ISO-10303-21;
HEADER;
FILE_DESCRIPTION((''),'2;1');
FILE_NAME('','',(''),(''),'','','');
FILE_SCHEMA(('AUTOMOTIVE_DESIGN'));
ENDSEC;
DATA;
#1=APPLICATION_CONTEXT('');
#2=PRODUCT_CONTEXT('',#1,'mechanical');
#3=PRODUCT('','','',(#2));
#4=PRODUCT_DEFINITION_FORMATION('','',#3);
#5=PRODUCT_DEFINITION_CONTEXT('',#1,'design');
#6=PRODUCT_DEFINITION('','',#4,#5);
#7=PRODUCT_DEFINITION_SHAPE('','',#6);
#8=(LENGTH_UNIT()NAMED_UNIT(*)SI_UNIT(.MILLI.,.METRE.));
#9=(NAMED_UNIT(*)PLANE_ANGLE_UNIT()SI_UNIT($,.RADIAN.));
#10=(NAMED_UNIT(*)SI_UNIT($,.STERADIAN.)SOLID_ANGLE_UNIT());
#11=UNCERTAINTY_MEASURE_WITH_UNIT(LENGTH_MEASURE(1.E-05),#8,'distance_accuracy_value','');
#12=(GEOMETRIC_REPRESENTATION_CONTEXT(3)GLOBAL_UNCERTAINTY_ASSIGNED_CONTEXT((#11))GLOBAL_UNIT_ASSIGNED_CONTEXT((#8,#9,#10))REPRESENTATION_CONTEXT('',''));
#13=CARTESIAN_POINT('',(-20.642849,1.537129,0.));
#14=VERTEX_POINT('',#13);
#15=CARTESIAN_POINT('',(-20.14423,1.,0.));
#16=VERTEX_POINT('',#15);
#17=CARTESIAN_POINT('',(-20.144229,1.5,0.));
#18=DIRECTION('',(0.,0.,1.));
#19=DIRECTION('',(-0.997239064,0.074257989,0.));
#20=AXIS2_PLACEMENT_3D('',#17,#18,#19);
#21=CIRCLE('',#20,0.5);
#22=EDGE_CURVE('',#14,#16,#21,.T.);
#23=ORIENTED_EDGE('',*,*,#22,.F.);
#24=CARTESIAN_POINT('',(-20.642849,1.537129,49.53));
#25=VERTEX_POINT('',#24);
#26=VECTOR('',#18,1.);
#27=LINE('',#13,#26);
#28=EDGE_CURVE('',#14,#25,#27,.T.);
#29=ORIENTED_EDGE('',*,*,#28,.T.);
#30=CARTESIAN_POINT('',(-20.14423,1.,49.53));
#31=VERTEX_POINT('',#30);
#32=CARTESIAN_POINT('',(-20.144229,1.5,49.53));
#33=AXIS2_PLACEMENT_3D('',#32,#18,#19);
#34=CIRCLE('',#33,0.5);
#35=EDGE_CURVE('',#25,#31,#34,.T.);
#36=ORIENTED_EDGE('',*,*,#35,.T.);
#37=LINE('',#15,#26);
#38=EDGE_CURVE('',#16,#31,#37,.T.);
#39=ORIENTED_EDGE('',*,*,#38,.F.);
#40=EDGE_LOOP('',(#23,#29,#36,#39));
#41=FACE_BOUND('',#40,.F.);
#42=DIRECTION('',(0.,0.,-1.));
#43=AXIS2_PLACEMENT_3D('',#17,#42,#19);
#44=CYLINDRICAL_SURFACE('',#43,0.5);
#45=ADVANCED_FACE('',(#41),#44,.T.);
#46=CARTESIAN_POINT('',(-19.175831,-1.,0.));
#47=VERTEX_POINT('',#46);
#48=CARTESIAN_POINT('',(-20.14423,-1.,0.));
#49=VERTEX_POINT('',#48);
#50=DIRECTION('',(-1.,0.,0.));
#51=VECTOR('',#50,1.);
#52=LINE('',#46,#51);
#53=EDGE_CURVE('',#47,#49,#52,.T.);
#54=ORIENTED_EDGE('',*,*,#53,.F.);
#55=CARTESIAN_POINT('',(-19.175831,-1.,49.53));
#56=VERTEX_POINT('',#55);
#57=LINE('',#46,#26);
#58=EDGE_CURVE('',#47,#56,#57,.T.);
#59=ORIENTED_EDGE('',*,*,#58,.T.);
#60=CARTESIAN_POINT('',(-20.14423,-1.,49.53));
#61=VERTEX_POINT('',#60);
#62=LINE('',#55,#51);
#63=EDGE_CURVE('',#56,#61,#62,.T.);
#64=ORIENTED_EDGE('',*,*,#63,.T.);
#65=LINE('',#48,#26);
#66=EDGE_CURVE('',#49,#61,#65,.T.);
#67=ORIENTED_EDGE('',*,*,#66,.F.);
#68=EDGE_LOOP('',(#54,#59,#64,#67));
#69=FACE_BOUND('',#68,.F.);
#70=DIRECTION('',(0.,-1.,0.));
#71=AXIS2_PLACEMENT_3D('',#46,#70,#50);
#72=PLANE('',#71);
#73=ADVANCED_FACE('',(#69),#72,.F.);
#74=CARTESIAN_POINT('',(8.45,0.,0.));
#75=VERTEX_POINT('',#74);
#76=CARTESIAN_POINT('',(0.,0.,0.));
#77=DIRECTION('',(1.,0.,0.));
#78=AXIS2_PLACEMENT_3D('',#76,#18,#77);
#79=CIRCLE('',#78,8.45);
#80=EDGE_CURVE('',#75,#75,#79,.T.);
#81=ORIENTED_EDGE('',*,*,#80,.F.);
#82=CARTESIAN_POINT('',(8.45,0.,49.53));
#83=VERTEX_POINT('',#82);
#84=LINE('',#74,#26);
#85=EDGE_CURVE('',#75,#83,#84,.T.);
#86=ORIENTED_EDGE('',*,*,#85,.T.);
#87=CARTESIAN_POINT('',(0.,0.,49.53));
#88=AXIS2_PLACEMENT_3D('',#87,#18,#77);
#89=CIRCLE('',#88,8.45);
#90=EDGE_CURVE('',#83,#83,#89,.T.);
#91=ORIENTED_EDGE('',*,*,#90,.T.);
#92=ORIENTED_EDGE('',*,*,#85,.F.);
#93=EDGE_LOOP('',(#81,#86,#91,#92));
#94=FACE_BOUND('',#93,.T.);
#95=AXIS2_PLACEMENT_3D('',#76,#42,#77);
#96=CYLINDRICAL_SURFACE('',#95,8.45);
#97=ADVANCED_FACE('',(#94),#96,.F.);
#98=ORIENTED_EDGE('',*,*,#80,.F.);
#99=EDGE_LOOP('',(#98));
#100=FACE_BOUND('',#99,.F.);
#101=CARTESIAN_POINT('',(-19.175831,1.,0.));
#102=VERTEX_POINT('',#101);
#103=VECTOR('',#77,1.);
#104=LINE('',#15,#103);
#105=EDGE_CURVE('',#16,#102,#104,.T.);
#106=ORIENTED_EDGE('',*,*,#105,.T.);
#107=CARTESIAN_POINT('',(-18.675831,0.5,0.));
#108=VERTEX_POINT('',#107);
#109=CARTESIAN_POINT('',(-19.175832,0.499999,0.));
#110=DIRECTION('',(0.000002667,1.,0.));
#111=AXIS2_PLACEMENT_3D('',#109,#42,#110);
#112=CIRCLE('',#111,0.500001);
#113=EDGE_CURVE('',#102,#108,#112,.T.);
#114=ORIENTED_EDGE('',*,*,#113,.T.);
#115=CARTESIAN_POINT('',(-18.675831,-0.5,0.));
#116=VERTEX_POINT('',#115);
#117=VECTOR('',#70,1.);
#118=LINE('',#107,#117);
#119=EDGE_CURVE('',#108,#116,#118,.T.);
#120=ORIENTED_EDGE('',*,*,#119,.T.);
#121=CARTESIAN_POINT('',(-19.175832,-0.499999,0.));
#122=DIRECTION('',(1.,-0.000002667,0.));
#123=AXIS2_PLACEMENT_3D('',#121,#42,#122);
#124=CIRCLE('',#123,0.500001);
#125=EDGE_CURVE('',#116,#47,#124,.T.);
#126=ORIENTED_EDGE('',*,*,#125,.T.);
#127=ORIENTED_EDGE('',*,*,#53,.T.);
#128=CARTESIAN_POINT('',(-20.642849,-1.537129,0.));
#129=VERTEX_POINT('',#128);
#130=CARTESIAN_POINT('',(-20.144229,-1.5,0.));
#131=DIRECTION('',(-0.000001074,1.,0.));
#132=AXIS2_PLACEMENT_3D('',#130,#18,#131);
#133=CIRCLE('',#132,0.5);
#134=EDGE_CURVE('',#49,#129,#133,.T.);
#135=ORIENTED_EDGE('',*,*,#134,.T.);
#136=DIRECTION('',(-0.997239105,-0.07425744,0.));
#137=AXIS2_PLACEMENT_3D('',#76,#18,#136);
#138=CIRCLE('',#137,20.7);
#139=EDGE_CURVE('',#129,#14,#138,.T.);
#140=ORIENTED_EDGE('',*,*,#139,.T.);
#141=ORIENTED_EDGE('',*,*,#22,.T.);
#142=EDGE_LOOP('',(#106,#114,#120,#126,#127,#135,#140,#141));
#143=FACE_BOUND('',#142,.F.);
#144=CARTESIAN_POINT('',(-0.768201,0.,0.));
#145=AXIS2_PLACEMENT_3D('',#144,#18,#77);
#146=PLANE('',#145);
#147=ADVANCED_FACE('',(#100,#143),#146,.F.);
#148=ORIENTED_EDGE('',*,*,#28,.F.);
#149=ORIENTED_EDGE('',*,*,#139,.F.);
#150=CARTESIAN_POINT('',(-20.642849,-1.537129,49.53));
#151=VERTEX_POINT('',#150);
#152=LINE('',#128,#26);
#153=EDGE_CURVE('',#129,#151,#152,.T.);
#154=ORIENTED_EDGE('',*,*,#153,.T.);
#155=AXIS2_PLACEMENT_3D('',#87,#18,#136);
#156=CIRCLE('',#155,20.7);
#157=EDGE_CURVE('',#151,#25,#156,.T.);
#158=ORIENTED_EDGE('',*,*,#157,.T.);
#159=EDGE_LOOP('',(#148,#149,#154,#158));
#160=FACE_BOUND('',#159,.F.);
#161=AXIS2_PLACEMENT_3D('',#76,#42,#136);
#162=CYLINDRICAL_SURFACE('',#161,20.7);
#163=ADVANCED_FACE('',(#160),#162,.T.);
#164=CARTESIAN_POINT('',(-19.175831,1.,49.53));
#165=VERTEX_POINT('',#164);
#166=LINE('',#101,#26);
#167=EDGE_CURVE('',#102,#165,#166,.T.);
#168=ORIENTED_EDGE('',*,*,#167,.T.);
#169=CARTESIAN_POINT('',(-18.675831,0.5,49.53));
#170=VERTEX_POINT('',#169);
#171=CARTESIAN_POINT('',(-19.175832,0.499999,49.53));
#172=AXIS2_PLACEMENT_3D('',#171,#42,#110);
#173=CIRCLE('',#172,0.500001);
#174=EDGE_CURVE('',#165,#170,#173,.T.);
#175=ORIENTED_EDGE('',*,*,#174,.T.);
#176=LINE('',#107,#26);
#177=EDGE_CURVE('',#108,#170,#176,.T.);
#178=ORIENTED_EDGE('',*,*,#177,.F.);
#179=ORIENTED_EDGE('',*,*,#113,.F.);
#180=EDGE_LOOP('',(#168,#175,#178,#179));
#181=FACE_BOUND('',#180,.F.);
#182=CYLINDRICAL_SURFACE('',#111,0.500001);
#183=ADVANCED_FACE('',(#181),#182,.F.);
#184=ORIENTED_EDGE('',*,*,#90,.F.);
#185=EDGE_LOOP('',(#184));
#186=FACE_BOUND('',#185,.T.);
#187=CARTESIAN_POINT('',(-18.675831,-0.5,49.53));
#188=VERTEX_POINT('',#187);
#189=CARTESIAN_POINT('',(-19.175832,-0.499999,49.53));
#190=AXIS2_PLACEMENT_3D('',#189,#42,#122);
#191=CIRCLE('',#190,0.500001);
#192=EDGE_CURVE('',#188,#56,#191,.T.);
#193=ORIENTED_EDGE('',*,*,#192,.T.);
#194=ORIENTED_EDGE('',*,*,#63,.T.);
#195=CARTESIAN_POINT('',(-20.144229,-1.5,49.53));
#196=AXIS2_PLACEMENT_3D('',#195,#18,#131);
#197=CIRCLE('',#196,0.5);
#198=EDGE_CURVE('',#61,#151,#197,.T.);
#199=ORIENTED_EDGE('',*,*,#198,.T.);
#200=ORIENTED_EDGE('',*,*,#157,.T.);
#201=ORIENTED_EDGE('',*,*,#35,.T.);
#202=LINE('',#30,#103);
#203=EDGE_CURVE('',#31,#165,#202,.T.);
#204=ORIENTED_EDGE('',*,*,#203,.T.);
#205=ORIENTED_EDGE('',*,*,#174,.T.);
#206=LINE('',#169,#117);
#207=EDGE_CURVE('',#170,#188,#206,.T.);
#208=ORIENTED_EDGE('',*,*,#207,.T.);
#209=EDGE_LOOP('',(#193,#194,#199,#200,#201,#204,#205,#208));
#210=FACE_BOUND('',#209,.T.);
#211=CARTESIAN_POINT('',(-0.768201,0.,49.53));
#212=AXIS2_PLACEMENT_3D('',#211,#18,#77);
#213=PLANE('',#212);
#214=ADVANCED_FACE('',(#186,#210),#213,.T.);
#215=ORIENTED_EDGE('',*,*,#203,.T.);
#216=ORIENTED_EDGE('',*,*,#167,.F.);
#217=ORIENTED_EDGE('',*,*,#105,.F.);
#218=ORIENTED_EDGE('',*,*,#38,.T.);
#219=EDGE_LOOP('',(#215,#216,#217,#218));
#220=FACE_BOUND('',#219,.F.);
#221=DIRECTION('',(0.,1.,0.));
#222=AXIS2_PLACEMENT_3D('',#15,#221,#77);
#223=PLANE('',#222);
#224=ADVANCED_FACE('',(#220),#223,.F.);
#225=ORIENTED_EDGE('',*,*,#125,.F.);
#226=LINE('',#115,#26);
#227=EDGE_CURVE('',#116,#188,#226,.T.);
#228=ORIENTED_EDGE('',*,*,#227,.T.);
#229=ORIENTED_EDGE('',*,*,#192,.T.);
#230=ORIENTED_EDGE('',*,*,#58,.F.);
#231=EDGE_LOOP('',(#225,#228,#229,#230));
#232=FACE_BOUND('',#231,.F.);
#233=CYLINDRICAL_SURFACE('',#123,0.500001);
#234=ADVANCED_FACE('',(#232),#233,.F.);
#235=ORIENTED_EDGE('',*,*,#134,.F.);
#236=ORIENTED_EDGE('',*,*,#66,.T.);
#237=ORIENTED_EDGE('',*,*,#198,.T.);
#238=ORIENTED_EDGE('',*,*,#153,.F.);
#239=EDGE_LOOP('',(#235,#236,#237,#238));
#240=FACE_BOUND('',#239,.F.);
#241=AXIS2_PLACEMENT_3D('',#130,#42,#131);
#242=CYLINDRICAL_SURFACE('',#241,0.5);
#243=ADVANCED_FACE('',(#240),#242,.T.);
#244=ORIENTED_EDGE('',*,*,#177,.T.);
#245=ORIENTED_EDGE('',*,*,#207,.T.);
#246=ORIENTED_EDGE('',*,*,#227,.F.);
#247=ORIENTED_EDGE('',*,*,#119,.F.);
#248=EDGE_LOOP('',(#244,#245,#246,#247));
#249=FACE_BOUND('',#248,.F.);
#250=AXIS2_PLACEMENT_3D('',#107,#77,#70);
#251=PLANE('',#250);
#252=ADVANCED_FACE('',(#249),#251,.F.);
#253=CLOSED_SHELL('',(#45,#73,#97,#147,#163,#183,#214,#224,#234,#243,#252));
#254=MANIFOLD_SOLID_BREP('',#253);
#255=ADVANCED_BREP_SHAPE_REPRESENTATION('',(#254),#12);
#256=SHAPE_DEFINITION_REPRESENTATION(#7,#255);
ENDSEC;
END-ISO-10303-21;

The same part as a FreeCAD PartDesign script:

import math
import FreeCAD as App
import Part
import Sketcher
from FreeCAD import Vector

doc = App.newDocument("Part")
body = doc.addObject("PartDesign::Body", "Body")

sketch1 = body.newObject("Sketcher::SketchObject", "Sketch")
sketch1.AttachmentSupport = (doc.getObject("XY_Plane"), [""])
sketch1.MapMode = "FlatFace"
sketch1.addGeometry(Part.ArcOfCircle(Part.Circle(Vector(-20.144229, -1.5, 0), Vector(0, 0, 1), 0.5), math.radians(90.000062), math.radians(184.258589)), False)
sketch1.addGeometry(Part.ArcOfCircle(Part.Circle(Vector(0, 0, 0), Vector(0, 0, 1), 20.7), math.radians(-175.741442), math.radians(175.741442)), False)
sketch1.addGeometry(Part.ArcOfCircle(Part.Circle(Vector(-20.144229, 1.5, 0), Vector(0, 0, 1), 0.5), math.radians(175.741411), math.radians(269.999938)), False)
sketch1.addGeometry(Part.LineSegment(Vector(-20.14423, 1, 0), Vector(-19.175831, 1, 0)), False)
sketch1.addGeometry(Part.ArcOfCircle(Part.Circle(Vector(-19.175832, 0.499999, 0), Vector(0, 0, 1), 0.500001), math.radians(0.000153), math.radians(89.999847)), False)
sketch1.addGeometry(Part.LineSegment(Vector(-18.675831, 0.5, 0), Vector(-18.675831, -0.5, 0)), False)
sketch1.addGeometry(Part.ArcOfCircle(Part.Circle(Vector(-19.175832, -0.499999, 0), Vector(0, 0, 1), 0.500001), math.radians(-89.999847), math.radians(-0.000153)), False)
sketch1.addGeometry(Part.LineSegment(Vector(-19.175831, -1, 0), Vector(-20.14423, -1, 0)), False)
sketch1.addGeometry(Part.Circle(Vector(0, 0, 0), Vector(0, 0, 1), 8.45), False)
sketch1.addConstraint(Sketcher.Constraint("Tangent", 0, 2, 1, 1))
sketch1.addConstraint(Sketcher.Constraint("Tangent", 1, 2, 2, 1))
sketch1.addConstraint(Sketcher.Constraint("Tangent", 2, 2, 3, 1))
sketch1.addConstraint(Sketcher.Constraint("Coincident", 3, 2, 4, 2))
sketch1.addConstraint(Sketcher.Constraint("Coincident", 4, 1, 5, 1))
sketch1.addConstraint(Sketcher.Constraint("Coincident", 5, 2, 6, 2))
sketch1.addConstraint(Sketcher.Constraint("Coincident", 6, 1, 7, 1))
sketch1.addConstraint(Sketcher.Constraint("Tangent", 7, 2, 0, 1))
sketch1.addConstraint(Sketcher.Constraint("Horizontal", 3))
sketch1.addConstraint(Sketcher.Constraint("Vertical", 5))
sketch1.addConstraint(Sketcher.Constraint("Horizontal", 7))
sketch1.addConstraint(Sketcher.Constraint("Coincident", 1, 3, -1, 1))
sketch1.addConstraint(Sketcher.Constraint("Coincident", 8, 3, -1, 1))
sketch1.addConstraint(Sketcher.Constraint("Equal", 0, 2))
sketch1.addConstraint(Sketcher.Constraint("Equal", 2, 4))
sketch1.addConstraint(Sketcher.Constraint("Equal", 4, 6))
sketch1.addConstraint(Sketcher.Constraint("Symmetric", 3, 2, 6, 1, -1))
sketch1.addConstraint(Sketcher.Constraint("Horizontal", 6, 3, 5, 2))
sketch1.addConstraint(Sketcher.Constraint("Vertical", 6, 3, 3, 2))
sketch1.addConstraint(Sketcher.Constraint("Diameter", 8, 16.9))
sketch1.addConstraint(Sketcher.Constraint("Radius", 0, 0.5))
sketch1.addConstraint(Sketcher.Constraint("Radius", 1, 20.7))
sketch1.addConstraint(Sketcher.Constraint("DistanceY", 5, 2, 5, 1, 1.0))
sketch1.addConstraint(Sketcher.Constraint("DistanceY", -1, 1, 2, 2, 1.0))
sketch1.addConstraint(Sketcher.Constraint("DistanceX", 3, 1, 3, 2, 0.968399))
pad1 = body.newObject("PartDesign::Pad", "Pad")
pad1.Profile = sketch1
pad1.Length = 49.53

doc.recompute()
